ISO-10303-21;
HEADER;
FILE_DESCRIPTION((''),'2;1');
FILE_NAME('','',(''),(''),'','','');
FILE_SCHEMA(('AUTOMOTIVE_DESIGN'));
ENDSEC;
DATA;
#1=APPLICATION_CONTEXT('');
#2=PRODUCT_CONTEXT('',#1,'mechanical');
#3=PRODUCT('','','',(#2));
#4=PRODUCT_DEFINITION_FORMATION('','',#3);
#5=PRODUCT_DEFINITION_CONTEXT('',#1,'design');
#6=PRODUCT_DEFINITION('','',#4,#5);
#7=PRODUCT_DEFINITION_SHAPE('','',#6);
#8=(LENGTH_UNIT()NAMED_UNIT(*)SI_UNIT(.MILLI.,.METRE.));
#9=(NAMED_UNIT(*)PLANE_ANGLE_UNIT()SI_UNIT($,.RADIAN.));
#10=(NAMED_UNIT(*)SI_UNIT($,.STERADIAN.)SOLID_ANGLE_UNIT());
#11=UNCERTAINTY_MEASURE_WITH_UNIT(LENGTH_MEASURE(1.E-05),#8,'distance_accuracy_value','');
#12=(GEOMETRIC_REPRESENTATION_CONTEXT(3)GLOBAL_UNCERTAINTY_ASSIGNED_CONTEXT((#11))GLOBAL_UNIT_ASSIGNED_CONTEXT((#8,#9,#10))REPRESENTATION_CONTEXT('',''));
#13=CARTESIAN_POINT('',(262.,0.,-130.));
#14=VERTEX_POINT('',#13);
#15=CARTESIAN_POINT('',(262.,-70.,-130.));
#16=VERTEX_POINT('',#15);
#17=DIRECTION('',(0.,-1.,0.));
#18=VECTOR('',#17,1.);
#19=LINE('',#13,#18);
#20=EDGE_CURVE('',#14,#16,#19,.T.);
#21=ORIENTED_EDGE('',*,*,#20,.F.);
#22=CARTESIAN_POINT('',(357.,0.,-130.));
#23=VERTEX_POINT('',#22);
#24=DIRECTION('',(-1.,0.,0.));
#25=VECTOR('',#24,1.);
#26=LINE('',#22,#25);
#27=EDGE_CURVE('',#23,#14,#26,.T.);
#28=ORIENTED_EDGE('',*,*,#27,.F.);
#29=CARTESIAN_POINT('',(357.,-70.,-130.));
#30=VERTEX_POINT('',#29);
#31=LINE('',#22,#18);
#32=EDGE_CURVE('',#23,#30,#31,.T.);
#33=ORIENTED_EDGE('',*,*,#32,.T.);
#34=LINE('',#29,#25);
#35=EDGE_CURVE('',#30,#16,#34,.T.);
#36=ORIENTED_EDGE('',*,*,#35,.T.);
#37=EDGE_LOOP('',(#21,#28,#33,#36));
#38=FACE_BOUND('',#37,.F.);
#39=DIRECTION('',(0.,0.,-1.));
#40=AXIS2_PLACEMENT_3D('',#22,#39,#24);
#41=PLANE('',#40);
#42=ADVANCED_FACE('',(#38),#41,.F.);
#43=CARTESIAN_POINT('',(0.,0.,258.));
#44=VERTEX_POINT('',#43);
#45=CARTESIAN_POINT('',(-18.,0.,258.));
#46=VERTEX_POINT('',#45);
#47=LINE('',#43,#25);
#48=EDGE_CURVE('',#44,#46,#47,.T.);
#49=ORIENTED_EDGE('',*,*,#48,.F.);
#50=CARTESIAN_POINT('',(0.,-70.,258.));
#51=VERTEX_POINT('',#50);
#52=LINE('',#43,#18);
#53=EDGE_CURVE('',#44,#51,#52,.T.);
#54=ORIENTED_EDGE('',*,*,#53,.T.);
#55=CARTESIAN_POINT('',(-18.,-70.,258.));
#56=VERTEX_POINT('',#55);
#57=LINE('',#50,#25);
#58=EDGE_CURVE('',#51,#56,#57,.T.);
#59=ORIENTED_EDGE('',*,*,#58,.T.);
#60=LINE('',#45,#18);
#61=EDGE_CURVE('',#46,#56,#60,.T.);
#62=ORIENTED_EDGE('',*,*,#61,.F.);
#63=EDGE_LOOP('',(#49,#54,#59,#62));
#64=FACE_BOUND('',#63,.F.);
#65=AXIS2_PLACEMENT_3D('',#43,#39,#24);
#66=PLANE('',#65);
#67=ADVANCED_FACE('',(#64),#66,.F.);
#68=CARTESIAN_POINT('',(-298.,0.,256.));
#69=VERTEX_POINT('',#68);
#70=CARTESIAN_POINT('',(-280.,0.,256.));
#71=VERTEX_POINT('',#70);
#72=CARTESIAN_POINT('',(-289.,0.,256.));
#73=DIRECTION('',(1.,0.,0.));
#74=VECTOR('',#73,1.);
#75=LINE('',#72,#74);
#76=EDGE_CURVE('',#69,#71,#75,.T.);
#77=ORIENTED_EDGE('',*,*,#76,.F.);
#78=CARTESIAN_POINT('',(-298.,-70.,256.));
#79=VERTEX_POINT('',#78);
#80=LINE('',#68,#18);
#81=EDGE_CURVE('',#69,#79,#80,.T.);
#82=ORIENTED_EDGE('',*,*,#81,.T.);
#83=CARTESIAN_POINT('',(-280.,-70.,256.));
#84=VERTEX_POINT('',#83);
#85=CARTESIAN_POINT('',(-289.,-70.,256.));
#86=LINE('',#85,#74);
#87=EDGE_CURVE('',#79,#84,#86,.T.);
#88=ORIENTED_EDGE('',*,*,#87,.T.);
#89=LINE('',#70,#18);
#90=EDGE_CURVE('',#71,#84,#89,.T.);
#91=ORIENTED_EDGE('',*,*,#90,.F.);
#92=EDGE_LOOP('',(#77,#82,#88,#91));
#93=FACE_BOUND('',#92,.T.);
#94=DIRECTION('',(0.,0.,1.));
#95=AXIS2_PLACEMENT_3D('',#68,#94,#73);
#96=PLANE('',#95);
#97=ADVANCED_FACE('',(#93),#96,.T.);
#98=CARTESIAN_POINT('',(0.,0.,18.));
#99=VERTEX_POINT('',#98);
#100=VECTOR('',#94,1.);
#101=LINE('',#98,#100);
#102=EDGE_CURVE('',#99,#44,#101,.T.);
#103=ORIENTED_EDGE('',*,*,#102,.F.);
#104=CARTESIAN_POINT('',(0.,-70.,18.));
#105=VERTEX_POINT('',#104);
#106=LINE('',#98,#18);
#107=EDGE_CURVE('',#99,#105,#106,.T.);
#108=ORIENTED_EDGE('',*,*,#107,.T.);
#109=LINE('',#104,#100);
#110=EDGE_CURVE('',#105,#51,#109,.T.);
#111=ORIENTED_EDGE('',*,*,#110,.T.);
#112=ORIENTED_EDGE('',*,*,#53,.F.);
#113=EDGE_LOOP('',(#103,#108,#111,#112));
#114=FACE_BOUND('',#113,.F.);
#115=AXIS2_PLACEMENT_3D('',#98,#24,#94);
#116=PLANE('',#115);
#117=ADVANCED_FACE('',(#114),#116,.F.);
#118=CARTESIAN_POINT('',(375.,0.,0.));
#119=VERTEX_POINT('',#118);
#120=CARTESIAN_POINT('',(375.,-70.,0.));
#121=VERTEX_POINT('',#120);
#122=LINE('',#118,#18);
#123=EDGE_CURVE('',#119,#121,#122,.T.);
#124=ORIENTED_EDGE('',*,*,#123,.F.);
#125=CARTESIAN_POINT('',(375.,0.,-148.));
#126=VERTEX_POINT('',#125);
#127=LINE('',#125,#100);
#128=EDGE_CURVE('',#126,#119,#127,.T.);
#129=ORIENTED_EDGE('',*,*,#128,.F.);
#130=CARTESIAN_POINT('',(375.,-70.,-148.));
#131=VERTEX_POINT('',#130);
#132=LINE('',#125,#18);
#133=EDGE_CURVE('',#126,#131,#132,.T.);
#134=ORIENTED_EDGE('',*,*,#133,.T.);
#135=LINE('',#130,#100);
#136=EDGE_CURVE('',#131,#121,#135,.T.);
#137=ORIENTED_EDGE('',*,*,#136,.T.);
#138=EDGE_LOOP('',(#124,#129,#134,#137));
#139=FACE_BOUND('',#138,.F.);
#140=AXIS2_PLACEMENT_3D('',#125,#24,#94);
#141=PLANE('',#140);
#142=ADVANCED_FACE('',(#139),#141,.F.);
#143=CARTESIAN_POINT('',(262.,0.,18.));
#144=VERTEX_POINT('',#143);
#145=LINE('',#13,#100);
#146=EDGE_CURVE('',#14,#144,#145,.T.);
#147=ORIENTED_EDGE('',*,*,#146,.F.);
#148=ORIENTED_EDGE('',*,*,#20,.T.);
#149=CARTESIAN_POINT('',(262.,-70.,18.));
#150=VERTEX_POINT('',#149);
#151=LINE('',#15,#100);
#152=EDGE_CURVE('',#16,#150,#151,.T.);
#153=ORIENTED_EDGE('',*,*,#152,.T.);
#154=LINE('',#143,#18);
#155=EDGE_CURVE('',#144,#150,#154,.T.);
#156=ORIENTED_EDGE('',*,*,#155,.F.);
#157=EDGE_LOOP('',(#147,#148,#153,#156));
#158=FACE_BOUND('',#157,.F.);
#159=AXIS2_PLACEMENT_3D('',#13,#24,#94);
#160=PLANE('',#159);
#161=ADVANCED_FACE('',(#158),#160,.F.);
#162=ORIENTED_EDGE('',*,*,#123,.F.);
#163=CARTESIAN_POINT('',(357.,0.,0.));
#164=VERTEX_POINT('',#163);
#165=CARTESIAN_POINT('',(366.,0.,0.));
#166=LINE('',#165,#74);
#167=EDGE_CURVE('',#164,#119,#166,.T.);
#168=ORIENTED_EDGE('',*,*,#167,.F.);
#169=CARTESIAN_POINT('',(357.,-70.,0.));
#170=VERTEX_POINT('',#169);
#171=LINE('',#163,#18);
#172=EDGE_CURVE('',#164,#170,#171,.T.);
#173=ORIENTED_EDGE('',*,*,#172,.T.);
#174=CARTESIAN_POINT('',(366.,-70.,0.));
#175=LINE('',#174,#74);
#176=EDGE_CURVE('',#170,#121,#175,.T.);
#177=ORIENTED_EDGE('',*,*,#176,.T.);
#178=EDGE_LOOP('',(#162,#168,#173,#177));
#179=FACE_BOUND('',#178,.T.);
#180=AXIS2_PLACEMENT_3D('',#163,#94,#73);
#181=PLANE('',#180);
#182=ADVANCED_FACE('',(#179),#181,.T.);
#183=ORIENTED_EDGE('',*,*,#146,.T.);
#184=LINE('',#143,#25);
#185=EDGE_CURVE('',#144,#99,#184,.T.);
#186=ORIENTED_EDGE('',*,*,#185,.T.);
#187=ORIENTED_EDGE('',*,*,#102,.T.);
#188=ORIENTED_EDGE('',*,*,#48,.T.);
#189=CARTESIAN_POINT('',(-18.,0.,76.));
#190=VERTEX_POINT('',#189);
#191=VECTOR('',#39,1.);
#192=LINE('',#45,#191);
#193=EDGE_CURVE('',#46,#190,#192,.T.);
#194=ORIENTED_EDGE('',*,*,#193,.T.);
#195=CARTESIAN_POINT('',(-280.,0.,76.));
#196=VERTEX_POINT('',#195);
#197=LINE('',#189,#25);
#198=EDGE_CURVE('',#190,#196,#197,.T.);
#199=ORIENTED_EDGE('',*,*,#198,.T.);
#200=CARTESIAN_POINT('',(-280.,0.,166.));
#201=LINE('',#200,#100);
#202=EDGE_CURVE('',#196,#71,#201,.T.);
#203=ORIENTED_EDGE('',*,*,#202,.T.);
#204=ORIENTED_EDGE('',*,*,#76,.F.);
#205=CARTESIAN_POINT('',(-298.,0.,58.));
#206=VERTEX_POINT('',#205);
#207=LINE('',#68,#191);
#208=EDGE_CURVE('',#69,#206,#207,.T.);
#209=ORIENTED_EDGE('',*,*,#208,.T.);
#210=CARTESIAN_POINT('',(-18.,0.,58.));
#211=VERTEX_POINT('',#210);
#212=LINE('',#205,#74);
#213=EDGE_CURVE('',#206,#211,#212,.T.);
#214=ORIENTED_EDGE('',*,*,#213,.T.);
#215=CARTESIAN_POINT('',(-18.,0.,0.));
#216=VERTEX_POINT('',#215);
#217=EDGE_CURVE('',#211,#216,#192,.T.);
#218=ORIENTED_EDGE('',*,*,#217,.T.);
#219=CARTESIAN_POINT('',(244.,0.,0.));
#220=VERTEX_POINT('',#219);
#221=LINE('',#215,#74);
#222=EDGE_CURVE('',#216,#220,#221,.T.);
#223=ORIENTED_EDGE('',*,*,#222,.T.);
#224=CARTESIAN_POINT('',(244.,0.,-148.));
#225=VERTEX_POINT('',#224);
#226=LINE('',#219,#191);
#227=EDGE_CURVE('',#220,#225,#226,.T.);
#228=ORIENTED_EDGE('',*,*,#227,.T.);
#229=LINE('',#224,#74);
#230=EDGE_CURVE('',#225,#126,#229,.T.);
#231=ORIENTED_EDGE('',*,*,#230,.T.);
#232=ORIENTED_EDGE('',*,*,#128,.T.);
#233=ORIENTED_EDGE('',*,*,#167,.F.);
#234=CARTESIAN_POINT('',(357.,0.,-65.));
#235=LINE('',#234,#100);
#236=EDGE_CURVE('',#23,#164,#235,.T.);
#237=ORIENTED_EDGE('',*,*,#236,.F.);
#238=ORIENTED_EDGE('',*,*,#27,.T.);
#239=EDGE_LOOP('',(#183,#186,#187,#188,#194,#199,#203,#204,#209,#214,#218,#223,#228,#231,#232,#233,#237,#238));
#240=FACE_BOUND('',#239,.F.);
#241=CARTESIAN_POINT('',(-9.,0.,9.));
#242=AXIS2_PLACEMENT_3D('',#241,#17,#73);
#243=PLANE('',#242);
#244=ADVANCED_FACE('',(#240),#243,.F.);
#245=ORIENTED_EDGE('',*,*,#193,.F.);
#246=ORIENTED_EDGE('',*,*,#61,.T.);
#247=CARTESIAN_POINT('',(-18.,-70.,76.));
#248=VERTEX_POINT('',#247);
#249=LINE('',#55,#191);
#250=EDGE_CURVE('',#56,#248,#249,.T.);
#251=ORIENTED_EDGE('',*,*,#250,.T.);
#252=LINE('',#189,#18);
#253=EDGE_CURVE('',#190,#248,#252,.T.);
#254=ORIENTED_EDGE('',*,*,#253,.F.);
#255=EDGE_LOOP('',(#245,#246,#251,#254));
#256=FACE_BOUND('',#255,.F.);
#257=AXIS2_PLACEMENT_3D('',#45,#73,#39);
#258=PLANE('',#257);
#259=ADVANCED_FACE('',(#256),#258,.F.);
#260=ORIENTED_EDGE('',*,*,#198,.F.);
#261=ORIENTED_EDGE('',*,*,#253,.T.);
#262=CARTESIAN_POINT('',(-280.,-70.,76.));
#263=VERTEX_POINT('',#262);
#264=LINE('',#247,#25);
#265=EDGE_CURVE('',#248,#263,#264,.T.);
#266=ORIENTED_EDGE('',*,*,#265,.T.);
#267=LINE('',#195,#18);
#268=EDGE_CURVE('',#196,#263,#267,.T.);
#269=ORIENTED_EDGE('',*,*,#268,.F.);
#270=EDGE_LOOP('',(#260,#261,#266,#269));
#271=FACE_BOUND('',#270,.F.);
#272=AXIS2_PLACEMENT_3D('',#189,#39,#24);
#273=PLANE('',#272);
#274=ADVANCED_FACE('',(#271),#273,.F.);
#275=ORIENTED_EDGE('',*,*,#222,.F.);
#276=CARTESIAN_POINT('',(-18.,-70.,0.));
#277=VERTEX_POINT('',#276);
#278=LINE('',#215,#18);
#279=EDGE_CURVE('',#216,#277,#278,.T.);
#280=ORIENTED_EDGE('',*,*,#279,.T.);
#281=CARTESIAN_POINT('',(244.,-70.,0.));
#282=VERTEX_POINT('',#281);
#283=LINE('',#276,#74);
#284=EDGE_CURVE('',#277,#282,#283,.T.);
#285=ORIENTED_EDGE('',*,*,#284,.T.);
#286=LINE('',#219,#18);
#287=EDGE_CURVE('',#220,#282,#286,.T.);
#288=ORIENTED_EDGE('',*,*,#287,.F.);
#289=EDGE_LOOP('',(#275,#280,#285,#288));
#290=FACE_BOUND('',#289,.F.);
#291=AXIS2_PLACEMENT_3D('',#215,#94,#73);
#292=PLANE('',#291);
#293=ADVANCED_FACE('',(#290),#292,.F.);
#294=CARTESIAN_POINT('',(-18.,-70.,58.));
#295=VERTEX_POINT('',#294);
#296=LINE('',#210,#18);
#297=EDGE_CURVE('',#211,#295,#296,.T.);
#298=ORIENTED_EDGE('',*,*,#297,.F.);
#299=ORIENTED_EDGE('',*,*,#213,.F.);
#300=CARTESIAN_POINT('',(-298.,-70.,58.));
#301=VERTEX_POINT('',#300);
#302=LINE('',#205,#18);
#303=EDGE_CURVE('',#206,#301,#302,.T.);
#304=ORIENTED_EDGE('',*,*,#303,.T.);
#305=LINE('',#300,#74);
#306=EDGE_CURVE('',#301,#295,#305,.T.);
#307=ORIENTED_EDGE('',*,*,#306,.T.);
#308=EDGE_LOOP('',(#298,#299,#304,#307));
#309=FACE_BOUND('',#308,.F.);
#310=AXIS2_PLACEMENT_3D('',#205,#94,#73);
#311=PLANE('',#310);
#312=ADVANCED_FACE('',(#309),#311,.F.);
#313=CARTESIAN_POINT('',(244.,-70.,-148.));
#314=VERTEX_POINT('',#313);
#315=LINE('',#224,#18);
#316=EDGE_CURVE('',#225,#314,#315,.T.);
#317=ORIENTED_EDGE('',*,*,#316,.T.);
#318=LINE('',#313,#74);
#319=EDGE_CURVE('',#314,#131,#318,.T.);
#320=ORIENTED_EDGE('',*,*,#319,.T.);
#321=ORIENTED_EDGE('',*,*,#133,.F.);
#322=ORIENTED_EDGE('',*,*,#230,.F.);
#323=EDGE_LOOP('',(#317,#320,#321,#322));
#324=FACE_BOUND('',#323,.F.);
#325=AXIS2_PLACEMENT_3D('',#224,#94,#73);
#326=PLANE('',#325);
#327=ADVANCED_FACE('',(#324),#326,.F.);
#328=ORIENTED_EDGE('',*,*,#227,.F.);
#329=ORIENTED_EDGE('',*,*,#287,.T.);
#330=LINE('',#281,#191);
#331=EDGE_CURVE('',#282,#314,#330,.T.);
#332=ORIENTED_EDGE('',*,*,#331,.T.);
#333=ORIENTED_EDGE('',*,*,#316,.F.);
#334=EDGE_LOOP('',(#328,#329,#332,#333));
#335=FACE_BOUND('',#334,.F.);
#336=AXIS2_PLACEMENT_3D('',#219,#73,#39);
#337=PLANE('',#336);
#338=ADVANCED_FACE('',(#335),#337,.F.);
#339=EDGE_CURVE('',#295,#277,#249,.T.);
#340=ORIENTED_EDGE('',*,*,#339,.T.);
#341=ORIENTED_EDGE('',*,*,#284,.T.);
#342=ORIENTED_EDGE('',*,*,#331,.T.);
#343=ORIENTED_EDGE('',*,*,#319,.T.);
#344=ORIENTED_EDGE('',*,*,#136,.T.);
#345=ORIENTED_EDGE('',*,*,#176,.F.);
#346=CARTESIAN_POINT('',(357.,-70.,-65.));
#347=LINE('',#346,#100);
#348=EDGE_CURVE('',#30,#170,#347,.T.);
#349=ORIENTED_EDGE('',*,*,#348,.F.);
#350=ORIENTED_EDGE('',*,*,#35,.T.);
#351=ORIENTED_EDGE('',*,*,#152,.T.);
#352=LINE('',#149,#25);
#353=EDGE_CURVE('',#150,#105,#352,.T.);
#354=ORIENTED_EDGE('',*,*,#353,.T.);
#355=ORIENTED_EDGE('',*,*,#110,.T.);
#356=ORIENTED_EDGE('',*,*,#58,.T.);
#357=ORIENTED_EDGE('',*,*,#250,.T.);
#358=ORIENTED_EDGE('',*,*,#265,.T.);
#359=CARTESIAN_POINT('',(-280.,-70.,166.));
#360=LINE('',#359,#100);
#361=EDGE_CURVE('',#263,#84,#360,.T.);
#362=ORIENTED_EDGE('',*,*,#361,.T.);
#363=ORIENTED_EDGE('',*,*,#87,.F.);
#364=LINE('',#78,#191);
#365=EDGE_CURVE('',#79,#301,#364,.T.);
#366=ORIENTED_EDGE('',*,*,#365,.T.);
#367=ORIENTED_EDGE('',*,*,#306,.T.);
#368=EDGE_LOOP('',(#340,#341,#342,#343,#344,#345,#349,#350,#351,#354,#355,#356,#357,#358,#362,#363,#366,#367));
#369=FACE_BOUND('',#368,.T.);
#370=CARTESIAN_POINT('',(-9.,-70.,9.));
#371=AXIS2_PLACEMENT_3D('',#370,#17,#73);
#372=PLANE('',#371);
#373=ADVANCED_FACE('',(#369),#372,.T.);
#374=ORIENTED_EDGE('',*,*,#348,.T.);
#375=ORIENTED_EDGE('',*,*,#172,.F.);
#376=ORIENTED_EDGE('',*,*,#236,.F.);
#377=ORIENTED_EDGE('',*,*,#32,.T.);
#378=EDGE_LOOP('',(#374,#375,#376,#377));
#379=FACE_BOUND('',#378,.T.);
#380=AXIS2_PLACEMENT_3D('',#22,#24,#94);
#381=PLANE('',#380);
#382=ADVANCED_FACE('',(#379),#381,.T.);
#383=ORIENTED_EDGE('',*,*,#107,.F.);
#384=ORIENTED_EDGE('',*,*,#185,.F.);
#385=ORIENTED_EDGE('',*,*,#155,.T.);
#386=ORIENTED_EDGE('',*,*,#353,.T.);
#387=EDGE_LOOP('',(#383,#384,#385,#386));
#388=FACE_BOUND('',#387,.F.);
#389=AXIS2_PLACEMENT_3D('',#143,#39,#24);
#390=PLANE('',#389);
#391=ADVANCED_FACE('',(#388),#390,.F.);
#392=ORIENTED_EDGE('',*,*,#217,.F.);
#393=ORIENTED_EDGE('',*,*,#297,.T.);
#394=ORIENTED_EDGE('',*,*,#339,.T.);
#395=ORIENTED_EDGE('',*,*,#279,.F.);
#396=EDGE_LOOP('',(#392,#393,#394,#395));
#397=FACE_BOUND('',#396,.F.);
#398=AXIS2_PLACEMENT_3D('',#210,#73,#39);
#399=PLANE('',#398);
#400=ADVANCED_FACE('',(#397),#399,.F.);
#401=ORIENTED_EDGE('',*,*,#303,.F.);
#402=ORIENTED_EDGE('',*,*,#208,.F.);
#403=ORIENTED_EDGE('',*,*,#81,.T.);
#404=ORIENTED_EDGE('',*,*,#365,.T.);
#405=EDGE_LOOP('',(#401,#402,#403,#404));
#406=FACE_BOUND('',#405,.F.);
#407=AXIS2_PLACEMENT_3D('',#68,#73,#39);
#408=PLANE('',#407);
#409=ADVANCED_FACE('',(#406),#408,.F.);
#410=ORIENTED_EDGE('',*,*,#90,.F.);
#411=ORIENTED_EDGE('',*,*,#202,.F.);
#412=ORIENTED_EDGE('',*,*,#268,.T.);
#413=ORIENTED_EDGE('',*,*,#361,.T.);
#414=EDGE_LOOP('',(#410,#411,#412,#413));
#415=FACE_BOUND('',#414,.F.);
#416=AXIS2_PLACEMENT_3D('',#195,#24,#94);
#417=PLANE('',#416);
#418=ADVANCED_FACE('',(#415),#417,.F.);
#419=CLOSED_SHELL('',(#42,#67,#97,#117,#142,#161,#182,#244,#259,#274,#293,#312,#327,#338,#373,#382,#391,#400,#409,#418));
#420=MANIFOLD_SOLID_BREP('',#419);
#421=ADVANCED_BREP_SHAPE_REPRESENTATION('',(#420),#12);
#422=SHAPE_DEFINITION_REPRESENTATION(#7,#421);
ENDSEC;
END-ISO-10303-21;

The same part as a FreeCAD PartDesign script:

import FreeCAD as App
import Part
import Sketcher
Q = App.Units.Quantity


def add_polygon(sketch, points):
    """Adds a closed chain of lines whose ends are joined by coincident constraints."""
    first, n = sketch.GeometryCount, len(points)
    for a, b in zip(points, points[1:] + points[:1]):
        sketch.addGeometry(Part.LineSegment(App.Vector(*a, 0), App.Vector(*b, 0)), False)
    for i in range(n):
        sketch.addConstraint(Sketcher.Constraint("Coincident", first + i, 2, first + (i + 1) % n, 1))

doc = App.newDocument("Part")
body = doc.addObject("PartDesign::Body", "Body")

sketch1 = doc.addObject("Sketcher::SketchObject", "Sketch")
body.addObject(sketch1)
sketch1.AttachmentSupport = (doc.XZ_Plane, [""])
sketch1.MapMode = "FlatFace"
add_polygon(sketch1, [(-18, 0), (244, 0), (244, -148), (375, -148), (375, 0), (357, 0), (357, -130), (262, -130), (262, 18), (0, 18), (0, 258), (-18, 258), (-18, 76), (-280, 76), (-280, 256), (-298, 256), (-298, 58), (-18, 58)])
sketch1.addConstraint([
    Sketcher.Constraint("Horizontal", 0),
    Sketcher.Constraint("Vertical", 1),
    Sketcher.Constraint("Horizontal", 2),
    Sketcher.Constraint("Vertical", 3),
    Sketcher.Constraint("Horizontal", 4),
    Sketcher.Constraint("Vertical", 5),
    Sketcher.Constraint("Horizontal", 6),
    Sketcher.Constraint("Vertical", 7),
    Sketcher.Constraint("Horizontal", 8),
    Sketcher.Constraint("Vertical", 9),
    Sketcher.Constraint("Horizontal", 10),
    Sketcher.Constraint("Vertical", 11),
    Sketcher.Constraint("Horizontal", 12),
    Sketcher.Constraint("Vertical", 13),
    Sketcher.Constraint("Horizontal", 14),
    Sketcher.Constraint("Vertical", 15),
    Sketcher.Constraint("Horizontal", 16),
    Sketcher.Constraint("Vertical", 17),
    Sketcher.Constraint("PointOnObject", 0, 2, -1),
    Sketcher.Constraint("PointOnObject", 3, 2, -1),
    Sketcher.Constraint("PointOnObject", 8, 2, -2),
    Sketcher.Constraint("Vertical", 11, 2, 16, 2),
    Sketcher.Constraint("Equal", 0, 8),
    Sketcher.Constraint("Equal", 4, 10),
    Sketcher.Constraint("Equal", 8, 12),
    Sketcher.Constraint("Equal", 10, 14),
    Sketcher.Constraint("Equal", 3, 7),
    Sketcher.Constraint("DistanceX", 0, 1, 0, 2, Q("262 mm")),
    Sketcher.Constraint("DistanceX", 2, 1, 2, 2, Q("131 mm")),
    Sketcher.Constraint("DistanceX", 4, 2, 4, 1, Q("18 mm")),
    Sketcher.Constraint("DistanceY", 1, 2, 1, 1, Q("148 mm")),
    Sketcher.Constraint("DistanceY", 5, 2, 5, 1, Q("130 mm")),
    Sketcher.Constraint("DistanceY", 9, 1, 9, 2, Q("240 mm")),
    Sketcher.Constraint("DistanceY", 11, 2, 11, 1, Q("182 mm")),
    Sketcher.Constraint("DistanceY", 13, 1, 13, 2, Q("180 mm")),
    Sketcher.Constraint("DistanceY", 15, 2, 15, 1, Q("198 mm")),
])
pad1 = doc.addObject("PartDesign::Pad", "Pad")
body.addObject(pad1)
pad1.Profile = sketch1
pad1.Length = 70

doc.recompute()
